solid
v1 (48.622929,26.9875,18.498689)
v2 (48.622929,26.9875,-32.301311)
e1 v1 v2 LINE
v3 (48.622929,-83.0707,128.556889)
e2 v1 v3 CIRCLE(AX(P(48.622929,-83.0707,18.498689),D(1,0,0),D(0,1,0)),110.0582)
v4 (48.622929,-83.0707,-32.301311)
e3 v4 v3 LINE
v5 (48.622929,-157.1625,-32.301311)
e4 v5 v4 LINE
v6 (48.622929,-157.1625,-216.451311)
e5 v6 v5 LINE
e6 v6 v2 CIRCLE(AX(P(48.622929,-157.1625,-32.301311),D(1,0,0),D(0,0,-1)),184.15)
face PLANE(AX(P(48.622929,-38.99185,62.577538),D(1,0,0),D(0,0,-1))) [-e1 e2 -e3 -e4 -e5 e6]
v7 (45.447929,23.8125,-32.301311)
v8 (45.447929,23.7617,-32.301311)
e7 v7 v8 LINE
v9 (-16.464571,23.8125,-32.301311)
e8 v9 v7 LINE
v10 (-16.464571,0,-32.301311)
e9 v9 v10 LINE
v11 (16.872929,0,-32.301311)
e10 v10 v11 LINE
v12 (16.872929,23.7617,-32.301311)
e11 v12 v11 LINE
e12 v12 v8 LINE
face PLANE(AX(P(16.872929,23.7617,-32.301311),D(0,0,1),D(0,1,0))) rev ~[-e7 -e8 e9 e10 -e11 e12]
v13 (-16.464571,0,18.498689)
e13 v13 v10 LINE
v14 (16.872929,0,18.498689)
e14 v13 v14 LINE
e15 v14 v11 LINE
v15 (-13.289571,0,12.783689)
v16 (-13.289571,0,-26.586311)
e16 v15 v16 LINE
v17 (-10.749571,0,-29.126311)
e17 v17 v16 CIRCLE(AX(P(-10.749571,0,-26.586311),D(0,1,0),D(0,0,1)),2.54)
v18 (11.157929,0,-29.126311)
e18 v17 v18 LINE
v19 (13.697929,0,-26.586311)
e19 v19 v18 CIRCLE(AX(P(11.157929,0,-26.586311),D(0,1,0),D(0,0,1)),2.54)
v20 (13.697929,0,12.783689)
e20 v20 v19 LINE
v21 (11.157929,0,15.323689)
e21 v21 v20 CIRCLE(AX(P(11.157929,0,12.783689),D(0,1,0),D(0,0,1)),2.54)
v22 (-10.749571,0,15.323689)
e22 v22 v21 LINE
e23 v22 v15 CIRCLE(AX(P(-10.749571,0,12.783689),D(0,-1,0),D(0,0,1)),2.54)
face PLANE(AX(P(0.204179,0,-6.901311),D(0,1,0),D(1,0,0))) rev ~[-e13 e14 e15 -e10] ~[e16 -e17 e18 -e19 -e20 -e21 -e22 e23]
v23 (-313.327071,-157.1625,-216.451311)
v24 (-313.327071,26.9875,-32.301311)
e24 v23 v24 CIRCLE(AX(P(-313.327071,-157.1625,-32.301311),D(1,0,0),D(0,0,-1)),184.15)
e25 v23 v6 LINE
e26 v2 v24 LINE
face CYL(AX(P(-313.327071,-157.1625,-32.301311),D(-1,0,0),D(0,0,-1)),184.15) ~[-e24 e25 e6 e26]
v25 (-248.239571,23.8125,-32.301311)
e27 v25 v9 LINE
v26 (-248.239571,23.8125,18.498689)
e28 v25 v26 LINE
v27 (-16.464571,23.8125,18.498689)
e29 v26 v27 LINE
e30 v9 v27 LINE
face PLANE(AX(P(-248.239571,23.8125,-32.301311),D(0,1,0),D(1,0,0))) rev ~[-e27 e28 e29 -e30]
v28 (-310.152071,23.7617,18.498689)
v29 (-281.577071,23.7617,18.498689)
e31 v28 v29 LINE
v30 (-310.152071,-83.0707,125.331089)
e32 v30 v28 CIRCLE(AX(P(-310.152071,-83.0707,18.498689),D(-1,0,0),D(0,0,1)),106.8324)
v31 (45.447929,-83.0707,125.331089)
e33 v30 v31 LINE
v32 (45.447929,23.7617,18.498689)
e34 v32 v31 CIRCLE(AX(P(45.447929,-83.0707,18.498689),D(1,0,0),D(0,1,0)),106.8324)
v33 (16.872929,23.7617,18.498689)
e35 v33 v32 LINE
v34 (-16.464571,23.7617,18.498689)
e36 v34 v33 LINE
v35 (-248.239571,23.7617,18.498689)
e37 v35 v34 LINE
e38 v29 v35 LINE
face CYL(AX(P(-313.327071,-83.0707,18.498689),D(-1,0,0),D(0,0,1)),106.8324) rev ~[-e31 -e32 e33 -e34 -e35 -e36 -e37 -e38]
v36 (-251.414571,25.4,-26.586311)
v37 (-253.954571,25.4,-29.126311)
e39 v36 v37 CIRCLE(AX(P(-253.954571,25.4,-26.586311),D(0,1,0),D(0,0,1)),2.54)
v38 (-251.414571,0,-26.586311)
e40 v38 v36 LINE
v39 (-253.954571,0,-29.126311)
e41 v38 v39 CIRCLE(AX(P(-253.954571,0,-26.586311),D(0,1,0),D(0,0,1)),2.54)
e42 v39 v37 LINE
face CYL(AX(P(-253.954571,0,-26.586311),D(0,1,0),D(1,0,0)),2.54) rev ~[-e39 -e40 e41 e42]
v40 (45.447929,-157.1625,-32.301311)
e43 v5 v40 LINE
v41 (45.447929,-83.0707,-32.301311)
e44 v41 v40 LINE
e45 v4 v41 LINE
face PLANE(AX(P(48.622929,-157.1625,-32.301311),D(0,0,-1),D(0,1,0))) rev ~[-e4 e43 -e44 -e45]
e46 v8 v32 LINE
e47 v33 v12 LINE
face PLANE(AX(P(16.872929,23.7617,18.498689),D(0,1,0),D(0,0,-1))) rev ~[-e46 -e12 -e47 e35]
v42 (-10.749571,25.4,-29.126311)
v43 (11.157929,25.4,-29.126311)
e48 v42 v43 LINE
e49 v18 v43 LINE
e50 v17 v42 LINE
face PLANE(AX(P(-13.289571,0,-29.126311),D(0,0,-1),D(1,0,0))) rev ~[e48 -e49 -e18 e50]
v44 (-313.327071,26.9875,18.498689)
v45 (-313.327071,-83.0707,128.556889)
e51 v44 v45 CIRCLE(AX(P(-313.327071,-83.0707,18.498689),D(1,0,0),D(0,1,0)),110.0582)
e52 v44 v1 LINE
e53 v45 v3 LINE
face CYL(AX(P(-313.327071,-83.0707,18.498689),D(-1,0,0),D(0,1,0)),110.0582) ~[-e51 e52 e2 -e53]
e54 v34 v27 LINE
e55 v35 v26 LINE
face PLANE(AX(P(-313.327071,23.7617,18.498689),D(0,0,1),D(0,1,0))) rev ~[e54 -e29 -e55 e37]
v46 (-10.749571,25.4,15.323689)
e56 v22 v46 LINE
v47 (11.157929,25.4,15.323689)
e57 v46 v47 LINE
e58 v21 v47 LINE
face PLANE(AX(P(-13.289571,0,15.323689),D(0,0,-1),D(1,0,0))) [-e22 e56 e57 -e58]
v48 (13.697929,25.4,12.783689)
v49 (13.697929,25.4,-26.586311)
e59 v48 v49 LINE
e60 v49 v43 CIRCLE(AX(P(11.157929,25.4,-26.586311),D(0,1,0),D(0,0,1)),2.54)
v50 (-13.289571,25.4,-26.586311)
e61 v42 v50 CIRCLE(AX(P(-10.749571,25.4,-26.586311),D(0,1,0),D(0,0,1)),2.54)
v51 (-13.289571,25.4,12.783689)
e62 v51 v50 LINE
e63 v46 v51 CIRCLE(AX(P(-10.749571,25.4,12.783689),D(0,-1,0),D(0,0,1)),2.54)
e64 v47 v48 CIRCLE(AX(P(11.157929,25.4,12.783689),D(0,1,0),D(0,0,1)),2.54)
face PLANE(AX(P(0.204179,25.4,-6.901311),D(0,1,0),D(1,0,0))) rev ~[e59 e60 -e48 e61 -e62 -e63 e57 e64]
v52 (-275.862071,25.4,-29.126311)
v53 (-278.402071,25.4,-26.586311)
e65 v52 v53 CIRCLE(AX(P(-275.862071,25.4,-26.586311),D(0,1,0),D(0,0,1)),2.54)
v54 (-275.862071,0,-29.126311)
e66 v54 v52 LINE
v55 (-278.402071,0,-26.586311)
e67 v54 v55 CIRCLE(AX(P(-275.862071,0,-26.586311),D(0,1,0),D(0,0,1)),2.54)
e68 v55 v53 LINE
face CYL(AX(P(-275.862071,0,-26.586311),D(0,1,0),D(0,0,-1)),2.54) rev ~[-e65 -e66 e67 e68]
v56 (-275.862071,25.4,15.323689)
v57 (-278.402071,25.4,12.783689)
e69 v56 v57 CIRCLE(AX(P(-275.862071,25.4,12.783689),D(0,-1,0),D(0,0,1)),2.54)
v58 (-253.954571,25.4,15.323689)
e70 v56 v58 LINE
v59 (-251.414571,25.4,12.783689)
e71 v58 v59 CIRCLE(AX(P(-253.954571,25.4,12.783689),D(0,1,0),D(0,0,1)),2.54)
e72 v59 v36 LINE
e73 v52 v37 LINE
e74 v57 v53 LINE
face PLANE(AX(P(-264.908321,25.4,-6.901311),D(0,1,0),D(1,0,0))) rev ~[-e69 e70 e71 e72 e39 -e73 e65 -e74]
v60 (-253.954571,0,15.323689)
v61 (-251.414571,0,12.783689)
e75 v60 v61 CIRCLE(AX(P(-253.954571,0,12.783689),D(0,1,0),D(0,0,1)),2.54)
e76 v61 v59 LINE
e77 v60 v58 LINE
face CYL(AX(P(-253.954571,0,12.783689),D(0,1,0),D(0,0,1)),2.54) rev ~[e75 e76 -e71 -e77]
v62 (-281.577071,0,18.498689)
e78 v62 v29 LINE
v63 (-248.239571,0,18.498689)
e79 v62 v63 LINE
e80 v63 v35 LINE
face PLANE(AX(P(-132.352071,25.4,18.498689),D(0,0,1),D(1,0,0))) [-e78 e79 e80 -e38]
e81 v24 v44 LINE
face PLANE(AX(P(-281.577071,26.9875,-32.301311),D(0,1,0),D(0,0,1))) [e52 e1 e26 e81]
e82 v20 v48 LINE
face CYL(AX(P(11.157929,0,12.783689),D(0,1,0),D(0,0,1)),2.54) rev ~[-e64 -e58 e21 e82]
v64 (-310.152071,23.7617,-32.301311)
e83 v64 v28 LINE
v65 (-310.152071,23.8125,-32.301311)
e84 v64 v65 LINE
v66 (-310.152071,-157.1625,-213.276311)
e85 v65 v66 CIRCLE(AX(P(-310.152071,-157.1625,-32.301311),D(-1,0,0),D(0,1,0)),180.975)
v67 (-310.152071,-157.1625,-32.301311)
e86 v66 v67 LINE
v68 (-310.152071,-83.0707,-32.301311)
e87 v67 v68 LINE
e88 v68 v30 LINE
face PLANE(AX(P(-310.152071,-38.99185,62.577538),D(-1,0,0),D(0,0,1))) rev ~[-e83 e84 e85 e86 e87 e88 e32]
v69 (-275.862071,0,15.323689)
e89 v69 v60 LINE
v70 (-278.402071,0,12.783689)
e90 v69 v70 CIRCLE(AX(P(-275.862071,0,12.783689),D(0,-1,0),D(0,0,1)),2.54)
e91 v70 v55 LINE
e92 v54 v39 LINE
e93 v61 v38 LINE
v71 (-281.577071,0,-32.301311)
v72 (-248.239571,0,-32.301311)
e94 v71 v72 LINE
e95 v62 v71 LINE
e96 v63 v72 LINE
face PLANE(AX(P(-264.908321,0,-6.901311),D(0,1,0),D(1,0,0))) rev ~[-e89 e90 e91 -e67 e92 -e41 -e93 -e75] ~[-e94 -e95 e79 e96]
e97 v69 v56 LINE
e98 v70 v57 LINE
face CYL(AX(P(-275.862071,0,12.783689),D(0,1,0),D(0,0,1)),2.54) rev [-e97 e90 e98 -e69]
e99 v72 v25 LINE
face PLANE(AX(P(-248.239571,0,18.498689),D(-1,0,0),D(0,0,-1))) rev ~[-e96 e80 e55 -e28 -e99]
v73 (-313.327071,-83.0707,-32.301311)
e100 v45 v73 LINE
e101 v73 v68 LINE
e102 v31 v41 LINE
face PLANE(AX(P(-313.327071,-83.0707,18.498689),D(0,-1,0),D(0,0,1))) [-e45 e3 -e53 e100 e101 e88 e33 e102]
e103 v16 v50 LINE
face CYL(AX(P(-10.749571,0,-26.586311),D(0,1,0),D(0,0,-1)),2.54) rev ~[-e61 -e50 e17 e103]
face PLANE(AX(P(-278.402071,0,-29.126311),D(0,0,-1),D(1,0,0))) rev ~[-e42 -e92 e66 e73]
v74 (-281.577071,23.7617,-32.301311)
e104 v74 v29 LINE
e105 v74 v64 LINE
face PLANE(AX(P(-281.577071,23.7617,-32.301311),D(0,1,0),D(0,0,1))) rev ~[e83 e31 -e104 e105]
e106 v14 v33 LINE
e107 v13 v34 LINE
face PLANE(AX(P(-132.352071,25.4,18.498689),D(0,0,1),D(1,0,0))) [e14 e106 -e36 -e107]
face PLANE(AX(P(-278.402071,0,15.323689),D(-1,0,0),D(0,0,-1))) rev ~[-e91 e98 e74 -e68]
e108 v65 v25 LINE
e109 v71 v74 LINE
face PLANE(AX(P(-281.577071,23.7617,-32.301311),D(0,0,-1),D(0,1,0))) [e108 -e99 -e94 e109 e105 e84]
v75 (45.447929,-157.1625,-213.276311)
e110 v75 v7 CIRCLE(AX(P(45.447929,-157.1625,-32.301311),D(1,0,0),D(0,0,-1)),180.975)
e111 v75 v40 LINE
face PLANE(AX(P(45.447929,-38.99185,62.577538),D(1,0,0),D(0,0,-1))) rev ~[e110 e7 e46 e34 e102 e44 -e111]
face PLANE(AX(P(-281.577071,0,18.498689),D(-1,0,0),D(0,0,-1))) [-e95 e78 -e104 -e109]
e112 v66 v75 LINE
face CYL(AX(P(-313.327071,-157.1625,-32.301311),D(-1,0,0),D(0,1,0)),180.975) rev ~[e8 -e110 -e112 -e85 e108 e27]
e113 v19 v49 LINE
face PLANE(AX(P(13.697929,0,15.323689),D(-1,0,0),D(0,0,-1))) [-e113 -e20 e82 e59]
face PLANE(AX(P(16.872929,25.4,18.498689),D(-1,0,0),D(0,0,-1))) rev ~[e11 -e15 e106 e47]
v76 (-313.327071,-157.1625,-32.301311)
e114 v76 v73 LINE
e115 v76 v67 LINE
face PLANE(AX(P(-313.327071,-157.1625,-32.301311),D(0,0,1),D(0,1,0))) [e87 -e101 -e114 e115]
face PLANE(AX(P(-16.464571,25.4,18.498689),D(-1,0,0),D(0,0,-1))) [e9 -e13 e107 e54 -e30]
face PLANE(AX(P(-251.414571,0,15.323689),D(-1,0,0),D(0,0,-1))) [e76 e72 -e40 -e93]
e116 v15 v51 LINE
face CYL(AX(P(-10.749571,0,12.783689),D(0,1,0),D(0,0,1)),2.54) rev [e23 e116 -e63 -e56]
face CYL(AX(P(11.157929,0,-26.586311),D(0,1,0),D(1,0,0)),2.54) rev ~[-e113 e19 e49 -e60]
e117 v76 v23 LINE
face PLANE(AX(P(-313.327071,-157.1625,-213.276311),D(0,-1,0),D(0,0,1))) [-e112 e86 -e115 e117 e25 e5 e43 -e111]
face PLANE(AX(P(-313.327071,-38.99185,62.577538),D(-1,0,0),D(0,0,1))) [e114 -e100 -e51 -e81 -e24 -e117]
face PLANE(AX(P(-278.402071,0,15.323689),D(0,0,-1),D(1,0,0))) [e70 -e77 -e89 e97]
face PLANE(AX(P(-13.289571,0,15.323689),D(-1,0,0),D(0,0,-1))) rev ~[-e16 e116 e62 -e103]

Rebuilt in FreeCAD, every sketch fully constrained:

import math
import FreeCAD as App
import Part
import Sketcher
from FreeCAD import Vector
Q = App.Units.Quantity


def edges_at(feature, points):
    """Names of the edges that pass closest to the given points."""
    edges = feature.Shape.Edges
    near = lambda p: min(range(len(edges)), key=lambda i: edges[i].distToShape(Part.Vertex(*p))[0])
    return sorted({f"Edge{near(p) + 1}" for p in points})


def add_polygon(sketch, points):
    """Adds a closed chain of lines whose ends are joined by coincident constraints."""
    first, n = sketch.GeometryCount, len(points)
    for a, b in zip(points, points[1:] + points[:1]):
        sketch.addGeometry(Part.LineSegment(App.Vector(*a, 0), App.Vector(*b, 0)), False)
    for i in range(n):
        sketch.addConstraint(Sketcher.Constraint("Coincident", first + i, 2, first + (i + 1) % n, 1))

doc = App.newDocument("Part")
body = doc.addObject("PartDesign::Body", "Body")

sketch1 = body.newObject("Sketcher::SketchObject", "Sketch")
sketch1.AttachmentSupport = (doc.getObject("XZ_Plane"), [""])
sketch1.MapMode = "FlatFace"
add_polygon(sketch1, [(-16.464571, -32.301311), (-16.464571, 18.498689), (16.872929, 18.498689), (16.872929, -32.301311)])
add_polygon(sketch1, [(13.697929, 15.323689), (-13.289571, 15.323689), (-13.289571, -29.126311), (13.697929, -29.126311)])
sketch1.addConstraint(Sketcher.Constraint("Vertical", 0))
sketch1.addConstraint(Sketcher.Constraint("Horizontal", 1))
sketch1.addConstraint(Sketcher.Constraint("Vertical", 2))
sketch1.addConstraint(Sketcher.Constraint("Horizontal", 3))
sketch1.addConstraint(Sketcher.Constraint("Horizontal", 4))
sketch1.addConstraint(Sketcher.Constraint("Vertical", 5))
sketch1.addConstraint(Sketcher.Constraint("Horizontal", 6))
sketch1.addConstraint(Sketcher.Constraint("Vertical", 7))
sketch1.addConstraint(Sketcher.Constraint("DistanceY", 0, 1, 0, 2, Q("2 in")))
sketch1.addConstraint(Sketcher.Constraint("DistanceY", 5, 2, 5, 1, Q("1.75 in")))
sketch1.addConstraint(Sketcher.Constraint("DistanceX", 1, 1, 1, 2, Q("1.3125 in")))
sketch1.addConstraint(Sketcher.Constraint("DistanceX", 4, 2, 4, 1, Q("1.0625 in")))
sketch1.addConstraint(Sketcher.Constraint("DistanceX", 0, 2, 4, 2, Q("0.125 in")))
sketch1.addConstraint(Sketcher.Constraint("DistanceY", 4, 2, 0, 2, Q("0.125 in")))
sketch1.addConstraint(Sketcher.Constraint("DistanceX", 0, 2, -1, 1, 16.464571))
sketch1.addConstraint(Sketcher.Constraint("DistanceY", -1, 1, 0, 2, 18.498689))
pad1 = body.newObject("PartDesign::Pad", "Pad")
pad1.Profile = sketch1
pad1.Length = Q("1 in")
pad1.Reversed = True
doc.recompute()

fillet = body.newObject("PartDesign::Fillet", "Fillet")
fillet.Base = (pad1, edges_at(pad1, [
    (13.698, 12.7, 15.324),
    (13.698, 12.7, -29.126),
    (-13.29, 12.7, -29.126),
    (-13.29, 12.7, 15.324),
]))
fillet.Radius = Q("0.1 in")

sketch2 = body.newObject("Sketcher::SketchObject", "Sketch001")
sketch2.AttachmentSupport = (doc.getObject("XZ_Plane"), [""])
sketch2.MapMode = "FlatFace"
sketch2.AttachmentOffset = App.Placement(Vector(0, 0, -1 * 25.4), App.Rotation())
add_polygon(sketch2, [(-16.464571, -32.301311), (-16.464571, 18.498689), (16.872929, 18.498689), (16.872929, -32.301311)])
sketch2.addConstraint(Sketcher.Constraint("Vertical", 0))
sketch2.addConstraint(Sketcher.Constraint("Horizontal", 1))
sketch2.addConstraint(Sketcher.Constraint("Vertical", 2))
sketch2.addConstraint(Sketcher.Constraint("Horizontal", 3))
sketch2.addConstraint(Sketcher.Constraint("DistanceY", 0, 1, 0, 2, Q("2 in")))
sketch2.addConstraint(Sketcher.Constraint("DistanceX", 1, 1, 1, 2, Q("1.3125 in")))
sketch2.addConstraint(Sketcher.Constraint("DistanceX", 0, 2, -1, 1, 16.464571))
sketch2.addConstraint(Sketcher.Constraint("DistanceY", -1, 1, 0, 2, 18.498689))
pad2 = body.newObject("PartDesign::Pad", "Pad001")
pad2.Profile = sketch2
pad2.Length = Q("0.0625 in")
pad2.Reversed = True
body2 = doc.addObject("PartDesign::Body", "Body001")

sketch3 = body2.newObject("Sketcher::SketchObject", "Sketch002")
sketch3.AttachmentSupport = (doc.getObject("XZ_Plane001"), [""])
sketch3.MapMode = "FlatFace"
add_polygon(sketch3, [(-281.577071, -32.301311), (-281.577071, 18.498689), (-248.239571, 18.498689), (-248.239571, -32.301311)])
sketch3.addConstraint(Sketcher.Constraint("Vertical", 0))
sketch3.addConstraint(Sketcher.Constraint("Horizontal", 1))
sketch3.addConstraint(Sketcher.Constraint("Vertical", 2))
sketch3.addConstraint(Sketcher.Constraint("Horizontal", 3))
sketch3.addConstraint(Sketcher.Constraint("DistanceY", 0, 1, 0, 2, Q("2 in")))
sketch3.addConstraint(Sketcher.Constraint("DistanceX", 1, 1, 1, 2, Q("1.3125 in")))
sketch3.addConstraint(Sketcher.Constraint("DistanceX", 0, 2, -1, 1, 281.577071))
sketch3.addConstraint(Sketcher.Constraint("DistanceY", -1, 1, 0, 2, 18.498689))
pad3 = body2.newObject("PartDesign::Pad", "Pad002")
pad3.Profile = sketch3
pad3.Length = Q("1.0625 in")
pad3.Reversed = True

sketch4 = body2.newObject("Sketcher::SketchObject", "Sketch003")
sketch4.AttachmentSupport = (doc.getObject("XZ_Plane001"), [""])
sketch4.MapMode = "FlatFace"
add_polygon(sketch4, [(-278.402071, -29.126311), (-278.402071, 15.323689), (-251.414571, 15.323689), (-251.414571, -29.126311)])
sketch4.addConstraint(Sketcher.Constraint("Vertical", 0))
sketch4.addConstraint(Sketcher.Constraint("Horizontal", 1))
sketch4.addConstraint(Sketcher.Constraint("Vertical", 2))
sketch4.addConstraint(Sketcher.Constraint("Horizontal", 3))
sketch4.addConstraint(Sketcher.Constraint("DistanceY", 0, 1, 0, 2, Q("1.75 in")))
sketch4.addConstraint(Sketcher.Constraint("DistanceX", 1, 1, 1, 2, Q("1.0625 in")))
sketch4.addConstraint(Sketcher.Constraint("DistanceX", 0, 2, -1, 1, 278.402071))
sketch4.addConstraint(Sketcher.Constraint("DistanceY", -1, 1, 0, 2, 15.323689))
pocket1 = body2.newObject("PartDesign::Pocket", "Pocket")
pocket1.Profile = sketch4
pocket1.Length = Q("1 in")
doc.recompute()

fillet2 = body2.newObject("PartDesign::Fillet", "Fillet001")
fillet2.Base = (pocket1, edges_at(pocket1, [
    (-251.415, 12.7, 15.324),
    (-251.415, 12.7, -29.126),
    (-278.402, 12.7, -29.126),
    (-278.402, 12.7, 15.324),
]))
fillet2.Radius = Q("0.1 in")
body.AllowCompound = True
doc.recompute()

boolean = body.newObject("PartDesign::Boolean", "Boolean")
boolean.Type = "Fuse"
boolean.addObjects([body2])

sketch5 = body.newObject("Sketcher::SketchObject", "Sketch004")
sketch5.AttachmentSupport = (doc.getObject("YZ_Plane"), [""])
sketch5.MapMode = "FlatFace"
sketch5.AttachmentOffset = App.Placement(Vector(0, 0, 16.872929), App.Rotation())
sketch5.addGeometry(Part.ArcOfCircle(Part.Circle(Vector(-157.1625, -32.301311, 0), Vector(0, 0, 1), 180.975), math.radians(-90), math.radians(0)), False)
sketch5.addGeometry(Part.LineSegment(Vector(-157.1625, -213.276311, 0), Vector(-157.1625, -216.451311, 0)), False)
sketch5.addGeometry(Part.ArcOfCircle(Part.Circle(Vector(-157.1625, -32.301311, 0), Vector(0, 0, 1), 184.15), math.radians(-90), math.radians(0)), False)
sketch5.addGeometry(Part.LineSegment(Vector(26.9875, -32.301311, 0), Vector(23.8125, -32.301311, 0)), False)
sketch5.addConstraint(Sketcher.Constraint("Coincident", 0, 1, 1, 1))
sketch5.addConstraint(Sketcher.Constraint("Coincident", 1, 2, 2, 1))
sketch5.addConstraint(Sketcher.Constraint("Coincident", 2, 2, 3, 1))
sketch5.addConstraint(Sketcher.Constraint("Coincident", 3, 2, 0, 2))
sketch5.addConstraint(Sketcher.Constraint("Vertical", 1))
sketch5.addConstraint(Sketcher.Constraint("Horizontal", 3))
sketch5.addConstraint(Sketcher.Constraint("Coincident", 2, 3, 0, 3))
sketch5.addConstraint(Sketcher.Constraint("Horizontal", 0, 3, 2, 2))
sketch5.addConstraint(Sketcher.Constraint("Vertical", 2, 3, 0, 1))
sketch5.addConstraint(Sketcher.Constraint("Radius", 2, Q("7.25 in")))
sketch5.addConstraint(Sketcher.Constraint("Radius", 0, Q("7.125 in")))
sketch5.addConstraint(Sketcher.Constraint("DistanceX", 0, 3, -1, 1, Q("6.1875 in")))
sketch5.addConstraint(Sketcher.Constraint("DistanceY", 0, 3, -1, 1, 32.301311))
pad4 = body.newObject("PartDesign::Pad", "Pad003")
pad4.Profile = sketch5
pad4.Type = "TwoLengths"
pad4.Length = Q("1.25 in")
pad4.Length2 = Q("13 in")

sketch6 = body.newObject("Sketcher::SketchObject", "Sketch005")
sketch6.AttachmentSupport = (doc.getObject("XY_Plane"), [""])
sketch6.MapMode = "FlatFace"
sketch6.AttachmentOffset = App.Placement(Vector(0, 0, -32.301311), App.Rotation())
add_polygon(sketch6, [(-248.239571, 26.9875), (-248.239571, 23.8125), (-16.464571, 23.8125), (-16.464571, 26.9875)])
sketch6.addConstraint(Sketcher.Constraint("Vertical", 0))
sketch6.addConstraint(Sketcher.Constraint("Horizontal", 1))
sketch6.addConstraint(Sketcher.Constraint("Vertical", 2))
sketch6.addConstraint(Sketcher.Constraint("Horizontal", 3))
sketch6.addConstraint(Sketcher.Constraint("DistanceX", 1, 1, 1, 2, Q("9.125 in")))
sketch6.addConstraint(Sketcher.Constraint("DistanceY", 0, 2, 0, 1, Q("0.125 in")))
sketch6.addConstraint(Sketcher.Constraint("DistanceY", -1, 1, 0, 2, Q("0.9375 in")))
sketch6.addConstraint(Sketcher.Constraint("DistanceX", 0, 2, -1, 1, 248.239571))
pad5 = body.newObject("PartDesign::Pad", "Pad004")
pad5.Profile = sketch6
pad5.Length = Q("2 in")

sketch7 = body.newObject("Sketcher::SketchObject", "Sketch006")
sketch7.AttachmentSupport = (doc.getObject("YZ_Plane"), [""])
sketch7.MapMode = "FlatFace"
sketch7.AttachmentOffset = App.Placement(Vector(0, 0, 16.872929), App.Rotation())
sketch7.addGeometry(Part.LineSegment(Vector(23.7617, 18.498689, 0), Vector(26.9875, 18.498689, 0)), False)
sketch7.addGeometry(Part.ArcOfCircle(Part.Circle(Vector(-83.0707, 18.498689, 0), Vector(0, 0, 1), 110.0582), math.radians(0), math.radians(90)), False)
sketch7.addGeometry(Part.LineSegment(Vector(-83.0707, 128.556889, 0), Vector(-83.0707, 125.331089, 0)), False)
sketch7.addGeometry(Part.ArcOfCircle(Part.Circle(Vector(-83.0707, 18.498689, 0), Vector(0, 0, 1), 106.8324), math.radians(0), math.radians(90)), False)
sketch7.addConstraint(Sketcher.Constraint("Coincident", 0, 2, 1, 1))
sketch7.addConstraint(Sketcher.Constraint("Coincident", 1, 2, 2, 1))
sketch7.addConstraint(Sketcher.Constraint("Coincident", 2, 2, 3, 2))
sketch7.addConstraint(Sketcher.Constraint("Coincident", 3, 1, 0, 1))
sketch7.addConstraint(Sketcher.Constraint("Horizontal", 0))
sketch7.addConstraint(Sketcher.Constraint("Vertical", 2))
sketch7.addConstraint(Sketcher.Constraint("Coincident", 3, 3, 1, 3))
sketch7.addConstraint(Sketcher.Constraint("Horizontal", 3, 3, 0, 2))
sketch7.addConstraint(Sketcher.Constraint("Vertical", 3, 3, 1, 2))
sketch7.addConstraint(Sketcher.Constraint("Radius", 1, Q("4.333 in")))
sketch7.addConstraint(Sketcher.Constraint("Radius", 3, Q("4.206 in")))
sketch7.addConstraint(Sketcher.Constraint("DistanceX", -1, 1, 0, 2, Q("1.0625 in")))
sketch7.addConstraint(Sketcher.Constraint("DistanceY", -1, 1, 1, 3, 18.498689))
pad6 = body.newObject("PartDesign::Pad", "Pad005")
pad6.Profile = sketch7
pad6.Type = "TwoLengths"
pad6.Length = Q("1.25 in")
pad6.Length2 = Q("13 in")

sketch8 = body.newObject("Sketcher::SketchObject", "Sketch007")
sketch8.AttachmentSupport = (doc.getObject("YZ_Plane"), [""])
sketch8.MapMode = "FlatFace"
sketch8.AttachmentOffset = App.Placement(Vector(0, 0, 45.447929), App.Rotation())
sketch8.addGeometry(Part.LineSegment(Vector(23.8125, -32.301311, 0), Vector(-157.1625, -32.301311, 0)), False)
sketch8.addGeometry(Part.LineSegment(Vector(-157.1625, -32.301311, 0), Vector(-157.1625, -213.276311, 0)), False)
sketch8.addGeometry(Part.ArcOfCircle(Part.Circle(Vector(-157.1625, -32.301311, 0), Vector(0, 0, 1), 180.975), math.radians(-90), math.radians(0)), False)
sketch8.addConstraint(Sketcher.Constraint("Coincident", 0, 2, 1, 1))
sketch8.addConstraint(Sketcher.Constraint("Coincident", 1, 2, 2, 1))
sketch8.addConstraint(Sketcher.Constraint("Coincident", 2, 2, 0, 1))
sketch8.addConstraint(Sketcher.Constraint("Horizontal", 0))
sketch8.addConstraint(Sketcher.Constraint("Vertical", 1))
sketch8.addConstraint(Sketcher.Constraint("Coincident", 0, 2, 2, 3))
sketch8.addConstraint(Sketcher.Constraint("Radius", 2, Q("7.125 in")))
sketch8.addConstraint(Sketcher.Constraint("DistanceX", 2, 3, -1, 1, Q("6.1875 in")))
sketch8.addConstraint(Sketcher.Constraint("DistanceY", 2, 3, -1, 1, 32.301311))
pad7 = body.newObject("PartDesign::Pad", "Pad006")
pad7.Profile = sketch8
pad7.Length = Q("0.125 in")

sketch9 = body.newObject("Sketcher::SketchObject", "Sketch008")
sketch9.AttachmentSupport = (doc.getObject("YZ_Plane"), [""])
sketch9.MapMode = "FlatFace"
sketch9.AttachmentOffset = App.Placement(Vector(0, 0, 16.872929), App.Rotation())
add_polygon(sketch9, [(26.9875, 18.498689), (23.7617, 18.498689), (23.7617, -32.301311), (26.9875, -32.301311)])
sketch9.addConstraint(Sketcher.Constraint("Horizontal", 0))
sketch9.addConstraint(Sketcher.Constraint("Vertical", 1))
sketch9.addConstraint(Sketcher.Constraint("Horizontal", 2))
sketch9.addConstraint(Sketcher.Constraint("Vertical", 3))
sketch9.addConstraint(Sketcher.Constraint("DistanceY", 1, 2, 1, 1, Q("2 in")))
sketch9.addConstraint(Sketcher.Constraint("DistanceX", 0, 2, 0, 1, Q("0.127 in")))
sketch9.addConstraint(Sketcher.Constraint("DistanceX", -1, 1, 2, 2, Q("1.0625 in")))
sketch9.addConstraint(Sketcher.Constraint("DistanceY", -1, 1, 0, 2, 18.498689))
pad8 = body.newObject("PartDesign::Pad", "Pad007")
pad8.Profile = sketch9
pad8.Length = Q("1.25 in")

sketch10 = body.newObject("Sketcher::SketchObject", "Sketch009")
sketch10.AttachmentSupport = (doc.getObject("XY_Plane"), [""])
sketch10.MapMode = "FlatFace"
sketch10.AttachmentOffset = App.Placement(Vector(0, 0, -32.301311), App.Rotation())
add_polygon(sketch10, [(45.447929, 23.7617), (45.447929, -157.1625), (48.622929, -157.1625), (48.622929, 23.7617)])
sketch10.addConstraint(Sketcher.Constraint("Vertical", 0))
sketch10.addConstraint(Sketcher.Constraint("Horizontal", 1))
sketch10.addConstraint(Sketcher.Constraint("Vertical", 2))
sketch10.addConstraint(Sketcher.Constraint("Horizontal", 3))
sketch10.addConstraint(Sketcher.Constraint("DistanceX", 1, 1, 1, 2, Q("0.125 in")))
sketch10.addConstraint(Sketcher.Constraint("DistanceY", 0, 2, 0, 1, Q("7.123 in")))
sketch10.addConstraint(Sketcher.Constraint("DistanceY", 0, 2, -1, 1, Q("6.1875 in")))
sketch10.addConstraint(Sketcher.Constraint("DistanceX", -1, 1, 0, 2, 45.447929))
pad9 = body.newObject("PartDesign::Pad", "Pad008")
pad9.Profile = sketch10
pad9.Length = Q("2 in")

sketch11 = body.newObject("Sketcher::SketchObject", "Sketch010")
sketch11.AttachmentSupport = (doc.getObject("YZ_Plane"), [""])
sketch11.MapMode = "FlatFace"
sketch11.AttachmentOffset = App.Placement(Vector(0, 0, 45.447929), App.Rotation())
sketch11.addGeometry(Part.LineSegment(Vector(-83.0707, 125.331089, 0), Vector(-83.0707, 18.498689, 0)), False)
sketch11.addGeometry(Part.LineSegment(Vector(-83.0707, 18.498689, 0), Vector(23.7617, 18.498689, 0)), False)
sketch11.addGeometry(Part.ArcOfCircle(Part.Circle(Vector(-83.0707, 18.498689, 0), Vector(0, 0, 1), 106.8324), math.radians(0), math.radians(90)), False)
sketch11.addConstraint(Sketcher.Constraint("Coincident", 0, 2, 1, 1))
sketch11.addConstraint(Sketcher.Constraint("Coincident", 1, 2, 2, 1))
sketch11.addConstraint(Sketcher.Constraint("Coincident", 2, 2, 0, 1))
sketch11.addConstraint(Sketcher.Constraint("Vertical", 0))
sketch11.addConstraint(Sketcher.Constraint("Horizontal", 1))
sketch11.addConstraint(Sketcher.Constraint("Coincident", 0, 2, 2, 3))
sketch11.addConstraint(Sketcher.Constraint("Radius", 2, Q("4.206 in")))
sketch11.addConstraint(Sketcher.Constraint("DistanceX", 2, 3, -1, 1, Q("3.2705 in")))
sketch11.addConstraint(Sketcher.Constraint("DistanceY", -1, 1, 2, 3, 18.498689))
pad10 = body.newObject("PartDesign::Pad", "Pad009")
pad10.Profile = sketch11
pad10.Length = Q("0.125 in")

sketch12 = body.newObject("Sketcher::SketchObject", "Sketch011")
sketch12.AttachmentSupport = (doc.getObject("YZ_Plane"), [""])
sketch12.MapMode = "FlatFace"
sketch12.AttachmentOffset = App.Placement(Vector(0, 0, -281.577071), App.Rotation())
add_polygon(sketch12, [(26.9875, -32.301311), (23.7617, -32.301311), (23.7617, 18.498689), (26.9875, 18.498689)])
sketch12.addConstraint(Sketcher.Constraint("Horizontal", 0))
sketch12.addConstraint(Sketcher.Constraint("Vertical", 1))
sketch12.addConstraint(Sketcher.Constraint("Horizontal", 2))
sketch12.addConstraint(Sketcher.Constraint("Vertical", 3))
sketch12.addConstraint(Sketcher.Constraint("DistanceY", 1, 1, 1, 2, Q("2 in")))
sketch12.addConstraint(Sketcher.Constraint("DistanceX", 0, 2, 0, 1, Q("0.127 in")))
sketch12.addConstraint(Sketcher.Constraint("DistanceX", -1, 1, 2, 2, Q("1.0625 in")))
sketch12.addConstraint(Sketcher.Constraint("DistanceY", 0, 2, -1, 1, 32.301311))
pad11 = body.newObject("PartDesign::Pad", "Pad010")
pad11.Profile = sketch12
pad11.Length = Q("1.25 in")
pad11.Reversed = True

sketch13 = body.newObject("Sketcher::SketchObject", "Sketch012")
sketch13.AttachmentSupport = (doc.getObject("YZ_Plane"), [""])
sketch13.MapMode = "FlatFace"
sketch13.AttachmentOffset = App.Placement(Vector(0, 0, -313.327071), App.Rotation())
sketch13.addGeometry(Part.LineSegment(Vector(-157.1625, -213.276311, 0), Vector(-157.1625, -32.301311, 0)), False)
sketch13.addGeometry(Part.LineSegment(Vector(-157.1625, -32.301311, 0), Vector(23.8125, -32.301311, 0)), False)
sketch13.addGeometry(Part.ArcOfCircle(Part.Circle(Vector(-157.1625, -32.301311, 0), Vector(0, 0, 1), 180.975), math.radians(-90), math.radians(0)), False)
sketch13.addConstraint(Sketcher.Constraint("Coincident", 0, 2, 1, 1))
sketch13.addConstraint(Sketcher.Constraint("Coincident", 1, 2, 2, 2))
sketch13.addConstraint(Sketcher.Constraint("Coincident", 2, 1, 0, 1))
sketch13.addConstraint(Sketcher.Constraint("Vertical", 0))
sketch13.addConstraint(Sketcher.Constraint("Horizontal", 1))
sketch13.addConstraint(Sketcher.Constraint("Coincident", 0, 2, 2, 3))
sketch13.addConstraint(Sketcher.Constraint("Radius", 2, Q("7.125 in")))
sketch13.addConstraint(Sketcher.Constraint("DistanceX", 2, 3, -1, 1, Q("6.1875 in")))
sketch13.addConstraint(Sketcher.Constraint("DistanceY", 2, 3, -1, 1, 32.301311))
pad12 = body.newObject("PartDesign::Pad", "Pad011")
pad12.Profile = sketch13
pad12.Length = Q("0.125 in")

sketch14 = body.newObject("Sketcher::SketchObject", "Sketch013")
sketch14.AttachmentSupport = (doc.getObject("XZ_Plane"), [""])
sketch14.MapMode = "FlatFace"
sketch14.AttachmentOffset = App.Placement(Vector(0, 0, -0.9355 * 25.4), App.Rotation())
add_polygon(sketch14, [(-313.327071, 18.498689), (-313.327071, -32.301311), (-310.152071, -32.301311), (-310.152071, 18.498689)])
sketch14.addConstraint(Sketcher.Constraint("Vertical", 0))
sketch14.addConstraint(Sketcher.Constraint("Horizontal", 1))
sketch14.addConstraint(Sketcher.Constraint("Vertical", 2))
sketch14.addConstraint(Sketcher.Constraint("Horizontal", 3))
sketch14.addConstraint(Sketcher.Constraint("DistanceY", 0, 2, 0, 1, Q("2 in")))
sketch14.addConstraint(Sketcher.Constraint("DistanceX", 1, 1, 1, 2, Q("0.125 in")))
sketch14.addConstraint(Sketcher.Constraint("DistanceX", 0, 2, -1, 1, 313.327071))
sketch14.addConstraint(Sketcher.Constraint("DistanceY", 0, 2, -1, 1, 32.301311))
pad13 = body.newObject("PartDesign::Pad", "Pad012")
pad13.Profile = sketch14
pad13.Length = Q("4.206 in")

sketch15 = body.newObject("Sketcher::SketchObject", "Sketch014")
sketch15.AttachmentSupport = (doc.getObject("YZ_Plane"), [""])
sketch15.MapMode = "FlatFace"
sketch15.AttachmentOffset = App.Placement(Vector(0, 0, -313.327071), App.Rotation())
sketch15.addGeometry(Part.LineSegment(Vector(23.7617, 18.498689, 0), Vector(-83.0707, 18.498689, 0)), False)
sketch15.addGeometry(Part.LineSegment(Vector(-83.0707, 18.498689, 0), Vector(-83.0707, 125.331089, 0)), False)
sketch15.addGeometry(Part.ArcOfCircle(Part.Circle(Vector(-83.0707, 18.498689, 0), Vector(0, 0, 1), 106.8324), math.radians(0), math.radians(90)), False)
sketch15.addConstraint(Sketcher.Constraint("Coincident", 0, 2, 1, 1))
sketch15.addConstraint(Sketcher.Constraint("Coincident", 1, 2, 2, 2))
sketch15.addConstraint(Sketcher.Constraint("Coincident", 2, 1, 0, 1))
sketch15.addConstraint(Sketcher.Constraint("Horizontal", 0))
sketch15.addConstraint(Sketcher.Constraint("Vertical", 1))
sketch15.addConstraint(Sketcher.Constraint("Coincident", 0, 2, 2, 3))
sketch15.addConstraint(Sketcher.Constraint("Radius", 2, Q("4.206 in")))
sketch15.addConstraint(Sketcher.Constraint("DistanceX", 2, 3, -1, 1, Q("3.2705 in")))
sketch15.addConstraint(Sketcher.Constraint("DistanceY", -1, 1, 2, 3, 18.498689))
pad14 = body.newObject("PartDesign::Pad", "Pad013")
pad14.Profile = sketch15
pad14.Length = Q("0.125 in")

sketch16 = body.newObject("Sketcher::SketchObject", "Sketch015")
sketch16.AttachmentSupport = (doc.getObject("YZ_Plane"), [""])
sketch16.MapMode = "FlatFace"
sketch16.AttachmentOffset = App.Placement(Vector(0, 0, 48.622929), App.Rotation())
add_polygon(sketch16, [(-83.0707, 18.498689), (-157.1625, 18.498689), (-157.1625, -32.301311), (-83.0707, -32.301311)])
sketch16.addConstraint(Sketcher.Constraint("Horizontal", 0))
sketch16.addConstraint(Sketcher.Constraint("Vertical", 1))
sketch16.addConstraint(Sketcher.Constraint("Horizontal", 2))
sketch16.addConstraint(Sketcher.Constraint("Vertical", 3))
sketch16.addConstraint(Sketcher.Constraint("DistanceY", 1, 2, 1, 1, Q("2 in")))
sketch16.addConstraint(Sketcher.Constraint("DistanceX", 0, 2, 0, 1, Q("2.917 in")))
sketch16.addConstraint(Sketcher.Constraint("DistanceX", 0, 2, -1, 1, Q("6.1875 in")))
sketch16.addConstraint(Sketcher.Constraint("DistanceY", -1, 1, 0, 2, 18.498689))
pocket2 = body.newObject("PartDesign::Pocket", "Pocket001")
pocket2.Profile = sketch16
pocket2.Type = "UpToFirst"

doc.recompute()
